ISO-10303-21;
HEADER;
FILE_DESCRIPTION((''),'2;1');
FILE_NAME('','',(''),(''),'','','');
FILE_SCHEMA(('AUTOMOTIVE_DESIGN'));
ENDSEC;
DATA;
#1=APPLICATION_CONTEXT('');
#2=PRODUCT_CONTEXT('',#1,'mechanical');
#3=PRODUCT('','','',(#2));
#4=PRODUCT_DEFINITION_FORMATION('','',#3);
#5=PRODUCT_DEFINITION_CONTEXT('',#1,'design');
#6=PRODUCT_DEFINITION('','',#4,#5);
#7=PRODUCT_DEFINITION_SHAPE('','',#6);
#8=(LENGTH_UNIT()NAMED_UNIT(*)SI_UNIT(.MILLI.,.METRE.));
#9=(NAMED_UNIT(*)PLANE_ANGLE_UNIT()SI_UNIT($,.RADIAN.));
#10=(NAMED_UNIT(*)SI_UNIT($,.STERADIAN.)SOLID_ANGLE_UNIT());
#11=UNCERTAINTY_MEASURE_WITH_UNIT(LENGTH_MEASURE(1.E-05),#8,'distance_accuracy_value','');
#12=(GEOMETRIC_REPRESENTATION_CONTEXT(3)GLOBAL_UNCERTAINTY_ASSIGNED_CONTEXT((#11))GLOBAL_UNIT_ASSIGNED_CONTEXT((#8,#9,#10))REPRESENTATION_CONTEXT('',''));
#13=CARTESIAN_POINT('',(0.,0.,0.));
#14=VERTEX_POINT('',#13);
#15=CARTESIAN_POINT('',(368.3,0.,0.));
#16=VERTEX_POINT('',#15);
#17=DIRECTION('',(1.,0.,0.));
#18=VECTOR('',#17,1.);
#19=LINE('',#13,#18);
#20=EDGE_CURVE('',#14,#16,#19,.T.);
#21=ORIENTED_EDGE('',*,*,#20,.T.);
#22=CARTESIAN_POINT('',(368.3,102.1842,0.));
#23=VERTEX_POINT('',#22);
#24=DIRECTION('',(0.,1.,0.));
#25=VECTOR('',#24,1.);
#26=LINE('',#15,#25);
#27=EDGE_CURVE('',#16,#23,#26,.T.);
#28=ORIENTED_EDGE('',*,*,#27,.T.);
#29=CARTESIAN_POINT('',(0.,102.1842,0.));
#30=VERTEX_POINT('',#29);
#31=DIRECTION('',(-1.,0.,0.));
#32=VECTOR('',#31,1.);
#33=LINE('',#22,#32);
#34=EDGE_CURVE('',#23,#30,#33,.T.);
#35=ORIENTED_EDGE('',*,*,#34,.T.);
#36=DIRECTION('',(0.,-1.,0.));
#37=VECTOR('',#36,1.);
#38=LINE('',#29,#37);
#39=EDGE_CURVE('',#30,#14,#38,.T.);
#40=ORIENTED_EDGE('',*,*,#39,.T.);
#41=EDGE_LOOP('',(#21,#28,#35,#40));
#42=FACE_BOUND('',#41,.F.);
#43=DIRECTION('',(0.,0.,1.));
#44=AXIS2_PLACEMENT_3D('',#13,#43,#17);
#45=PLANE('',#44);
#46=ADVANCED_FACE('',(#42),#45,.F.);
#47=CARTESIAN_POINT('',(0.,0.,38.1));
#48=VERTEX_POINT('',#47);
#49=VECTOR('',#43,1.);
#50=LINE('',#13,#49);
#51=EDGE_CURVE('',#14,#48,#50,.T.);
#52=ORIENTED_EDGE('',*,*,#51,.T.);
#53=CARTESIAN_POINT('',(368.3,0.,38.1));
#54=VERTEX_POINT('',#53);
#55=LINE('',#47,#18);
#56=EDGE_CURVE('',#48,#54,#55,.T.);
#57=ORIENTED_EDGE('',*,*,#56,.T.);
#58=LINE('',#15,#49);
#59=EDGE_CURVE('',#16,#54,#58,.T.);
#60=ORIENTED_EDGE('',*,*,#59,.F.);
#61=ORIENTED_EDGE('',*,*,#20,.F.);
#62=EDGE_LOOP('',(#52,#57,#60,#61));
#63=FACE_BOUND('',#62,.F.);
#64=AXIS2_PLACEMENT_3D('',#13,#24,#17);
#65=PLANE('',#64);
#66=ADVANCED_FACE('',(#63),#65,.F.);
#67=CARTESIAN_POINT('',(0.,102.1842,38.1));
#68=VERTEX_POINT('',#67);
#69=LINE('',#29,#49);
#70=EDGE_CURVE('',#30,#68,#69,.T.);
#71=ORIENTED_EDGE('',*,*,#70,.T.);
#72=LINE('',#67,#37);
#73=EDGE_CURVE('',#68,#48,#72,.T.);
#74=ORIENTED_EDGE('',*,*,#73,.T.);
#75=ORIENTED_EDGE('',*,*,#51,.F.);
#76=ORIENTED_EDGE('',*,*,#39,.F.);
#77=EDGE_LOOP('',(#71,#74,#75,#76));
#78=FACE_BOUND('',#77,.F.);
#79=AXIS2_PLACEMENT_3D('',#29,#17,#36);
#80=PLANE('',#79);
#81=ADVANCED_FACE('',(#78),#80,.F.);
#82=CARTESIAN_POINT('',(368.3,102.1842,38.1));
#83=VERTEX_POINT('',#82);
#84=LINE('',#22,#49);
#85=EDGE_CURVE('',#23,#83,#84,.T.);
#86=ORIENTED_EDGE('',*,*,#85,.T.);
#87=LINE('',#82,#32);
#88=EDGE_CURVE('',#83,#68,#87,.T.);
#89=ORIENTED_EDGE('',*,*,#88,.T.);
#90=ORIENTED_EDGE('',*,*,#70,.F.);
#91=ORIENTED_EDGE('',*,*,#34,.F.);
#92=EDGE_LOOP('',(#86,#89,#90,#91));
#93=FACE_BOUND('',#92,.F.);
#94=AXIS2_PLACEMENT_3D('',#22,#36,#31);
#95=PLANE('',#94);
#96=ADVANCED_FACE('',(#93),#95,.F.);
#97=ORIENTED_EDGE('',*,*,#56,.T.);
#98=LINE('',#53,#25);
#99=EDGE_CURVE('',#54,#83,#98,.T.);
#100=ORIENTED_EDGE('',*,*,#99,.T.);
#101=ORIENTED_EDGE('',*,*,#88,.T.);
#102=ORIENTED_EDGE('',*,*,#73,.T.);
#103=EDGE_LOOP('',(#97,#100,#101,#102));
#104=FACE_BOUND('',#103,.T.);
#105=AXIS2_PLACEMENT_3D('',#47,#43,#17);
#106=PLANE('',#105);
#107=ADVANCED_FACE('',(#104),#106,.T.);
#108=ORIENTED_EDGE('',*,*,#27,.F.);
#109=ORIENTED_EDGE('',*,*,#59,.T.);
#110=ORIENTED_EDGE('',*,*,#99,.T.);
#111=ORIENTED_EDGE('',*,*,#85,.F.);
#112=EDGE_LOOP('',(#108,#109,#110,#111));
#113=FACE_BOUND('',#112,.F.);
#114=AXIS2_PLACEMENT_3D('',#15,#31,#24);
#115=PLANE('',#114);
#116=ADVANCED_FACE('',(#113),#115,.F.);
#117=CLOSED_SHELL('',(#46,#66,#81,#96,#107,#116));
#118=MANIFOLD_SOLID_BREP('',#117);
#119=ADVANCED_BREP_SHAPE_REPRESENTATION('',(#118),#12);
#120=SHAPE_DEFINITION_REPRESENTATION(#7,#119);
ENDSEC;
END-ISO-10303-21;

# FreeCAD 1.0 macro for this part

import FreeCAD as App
import Part
import Sketcher
Q = App.Units.Quantity

doc = App.newDocument("Part")
body = doc.addObject("PartDesign::Body", "Body")

# Sketch on XY plane
sketch1 = body.newObject("Sketcher::SketchObject", "Sketch")
sketch1.AttachmentSupport = (doc.getObject("XY_Plane"), [""])
sketch1.MapMode = "FlatFace"
sketch1.addGeometry([
    Part.LineSegment(App.Vector(0, 102, 0), App.Vector(0, 0, 0)),
    Part.LineSegment(App.Vector(0, 0, 0), App.Vector(368, 0, 0)),
    Part.LineSegment(App.Vector(368, 0, 0), App.Vector(368, 102, 0)),
    Part.LineSegment(App.Vector(368, 102, 0), App.Vector(0, 102, 0)),
], False)
sketch1.addConstraint([
    Sketcher.Constraint("Coincident", 0, 2, 1, 1),
    Sketcher.Constraint("Coincident", 1, 2, 2, 1),
    Sketcher.Constraint("Coincident", 2, 2, 3, 1),
    Sketcher.Constraint("Coincident", 3, 2, 0, 1),
    Sketcher.Constraint("Vertical", 0),
    Sketcher.Constraint("Horizontal", 1),
    Sketcher.Constraint("Vertical", 2),
    Sketcher.Constraint("Horizontal", 3),
    Sketcher.Constraint("Coincident", 0, 2, -1, 1),
    Sketcher.Constraint("DistanceX", 1, 1, 1, 2, Q("14.5 in")),
    Sketcher.Constraint("DistanceY", 0, 2, 0, 1, Q("4.023 in")),
])
pad1 = body.newObject("PartDesign::Pad", "Pad")
pad1.Profile = sketch1
pad1.Length = Q("1.5 in")

doc.recompute()
